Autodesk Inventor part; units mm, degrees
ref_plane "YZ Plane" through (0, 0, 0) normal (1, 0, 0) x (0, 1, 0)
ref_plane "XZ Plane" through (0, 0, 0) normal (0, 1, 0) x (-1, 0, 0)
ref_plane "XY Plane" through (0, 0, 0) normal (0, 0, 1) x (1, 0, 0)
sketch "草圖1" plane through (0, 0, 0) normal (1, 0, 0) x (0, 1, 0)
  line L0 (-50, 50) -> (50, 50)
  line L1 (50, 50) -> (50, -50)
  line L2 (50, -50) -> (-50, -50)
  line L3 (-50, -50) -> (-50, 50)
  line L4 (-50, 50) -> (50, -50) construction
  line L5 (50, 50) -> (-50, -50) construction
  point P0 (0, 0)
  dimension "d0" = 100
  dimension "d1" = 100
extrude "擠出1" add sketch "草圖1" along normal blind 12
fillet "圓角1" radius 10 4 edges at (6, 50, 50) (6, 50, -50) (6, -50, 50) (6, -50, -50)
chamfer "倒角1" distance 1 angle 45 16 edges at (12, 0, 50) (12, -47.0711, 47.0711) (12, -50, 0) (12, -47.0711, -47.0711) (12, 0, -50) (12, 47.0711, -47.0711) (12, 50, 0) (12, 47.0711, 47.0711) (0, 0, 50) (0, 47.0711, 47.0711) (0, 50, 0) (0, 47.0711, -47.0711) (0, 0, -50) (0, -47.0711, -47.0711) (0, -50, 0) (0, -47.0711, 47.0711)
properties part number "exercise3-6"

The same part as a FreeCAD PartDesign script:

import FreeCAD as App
import Part
import Sketcher

V = App.Vector
Q = App.Units.Quantity


def edges_at(feature, points):
    """Names of the edges that pass closest to the given points."""
    edges = feature.Shape.Edges
    near = lambda p: min(range(len(edges)), key=lambda i: edges[i].distToShape(Part.Vertex(*p))[0])
    return sorted({f"Edge{near(p) + 1}" for p in points})

doc = App.newDocument("Part")
body = doc.addObject("PartDesign::Body", "Body")

sketch1 = body.newObject("Sketcher::SketchObject", "Sketch")
sketch1.AttachmentSupport = (doc.getObject("YZ_Plane"), [""])
sketch1.MapMode = "FlatFace"
sketch1.addGeometry(Part.LineSegment(V(50, 50, 0), V(-50, 50, 0)), False)
sketch1.addGeometry(Part.LineSegment(V(-50, 50, 0), V(-50, -50, 0)), False)
sketch1.addGeometry(Part.LineSegment(V(-50, -50, 0), V(50, -50, 0)), False)
sketch1.addGeometry(Part.LineSegment(V(50, -50, 0), V(50, 50, 0)), False)
sketch1.addConstraint(Sketcher.Constraint("Coincident", 0, 2, 1, 1))
sketch1.addConstraint(Sketcher.Constraint("Coincident", 1, 2, 2, 1))
sketch1.addConstraint(Sketcher.Constraint("Coincident", 2, 2, 3, 1))
sketch1.addConstraint(Sketcher.Constraint("Coincident", 3, 2, 0, 1))
sketch1.addConstraint(Sketcher.Constraint("Horizontal", 0))
sketch1.addConstraint(Sketcher.Constraint("Vertical", 1))
sketch1.addConstraint(Sketcher.Constraint("Horizontal", 2))
sketch1.addConstraint(Sketcher.Constraint("Vertical", 3))
sketch1.addConstraint(Sketcher.Constraint("Symmetric", 0, 2, 2, 2, -1, 1))
sketch1.addConstraint(Sketcher.Constraint("Equal", 2, 1))
sketch1.addConstraint(Sketcher.Constraint("DistanceX", 0, 2, 0, 1, Q("100 mm")))
pad1 = body.newObject("PartDesign::Pad", "Pad")
pad1.Profile = sketch1
pad1.Length = 12
doc.recompute()

fillet = body.newObject("PartDesign::Fillet", "Fillet")
fillet.Base = (pad1, edges_at(pad1, [
    (6, 50, 50),
    (6, 50, -50),
    (6, -50, 50),
    (6, -50, -50),
]))
fillet.Radius = 10
doc.recompute()

chamfer = body.newObject("PartDesign::Chamfer", "Chamfer")
chamfer.Base = (fillet, edges_at(fillet, [
    (12, 0, 50),
    (12, -47.071, 47.071),
    (12, -50, 0),
    (12, -47.071, -47.071),
    (12, 0, -50),
    (12, 47.071, -47.071),
    (12, 50, 0),
    (12, 47.071, 47.071),
    (0, 0, 50),
    (0, 47.071, 47.071),
    (0, 50, 0),
    (0, 47.071, -47.071),
    (0, 0, -50),
    (0, -47.071, -47.071),
    (0, -50, 0),
    (0, -47.071, 47.071),
]))
chamfer.Size = 1

doc.recompute()
